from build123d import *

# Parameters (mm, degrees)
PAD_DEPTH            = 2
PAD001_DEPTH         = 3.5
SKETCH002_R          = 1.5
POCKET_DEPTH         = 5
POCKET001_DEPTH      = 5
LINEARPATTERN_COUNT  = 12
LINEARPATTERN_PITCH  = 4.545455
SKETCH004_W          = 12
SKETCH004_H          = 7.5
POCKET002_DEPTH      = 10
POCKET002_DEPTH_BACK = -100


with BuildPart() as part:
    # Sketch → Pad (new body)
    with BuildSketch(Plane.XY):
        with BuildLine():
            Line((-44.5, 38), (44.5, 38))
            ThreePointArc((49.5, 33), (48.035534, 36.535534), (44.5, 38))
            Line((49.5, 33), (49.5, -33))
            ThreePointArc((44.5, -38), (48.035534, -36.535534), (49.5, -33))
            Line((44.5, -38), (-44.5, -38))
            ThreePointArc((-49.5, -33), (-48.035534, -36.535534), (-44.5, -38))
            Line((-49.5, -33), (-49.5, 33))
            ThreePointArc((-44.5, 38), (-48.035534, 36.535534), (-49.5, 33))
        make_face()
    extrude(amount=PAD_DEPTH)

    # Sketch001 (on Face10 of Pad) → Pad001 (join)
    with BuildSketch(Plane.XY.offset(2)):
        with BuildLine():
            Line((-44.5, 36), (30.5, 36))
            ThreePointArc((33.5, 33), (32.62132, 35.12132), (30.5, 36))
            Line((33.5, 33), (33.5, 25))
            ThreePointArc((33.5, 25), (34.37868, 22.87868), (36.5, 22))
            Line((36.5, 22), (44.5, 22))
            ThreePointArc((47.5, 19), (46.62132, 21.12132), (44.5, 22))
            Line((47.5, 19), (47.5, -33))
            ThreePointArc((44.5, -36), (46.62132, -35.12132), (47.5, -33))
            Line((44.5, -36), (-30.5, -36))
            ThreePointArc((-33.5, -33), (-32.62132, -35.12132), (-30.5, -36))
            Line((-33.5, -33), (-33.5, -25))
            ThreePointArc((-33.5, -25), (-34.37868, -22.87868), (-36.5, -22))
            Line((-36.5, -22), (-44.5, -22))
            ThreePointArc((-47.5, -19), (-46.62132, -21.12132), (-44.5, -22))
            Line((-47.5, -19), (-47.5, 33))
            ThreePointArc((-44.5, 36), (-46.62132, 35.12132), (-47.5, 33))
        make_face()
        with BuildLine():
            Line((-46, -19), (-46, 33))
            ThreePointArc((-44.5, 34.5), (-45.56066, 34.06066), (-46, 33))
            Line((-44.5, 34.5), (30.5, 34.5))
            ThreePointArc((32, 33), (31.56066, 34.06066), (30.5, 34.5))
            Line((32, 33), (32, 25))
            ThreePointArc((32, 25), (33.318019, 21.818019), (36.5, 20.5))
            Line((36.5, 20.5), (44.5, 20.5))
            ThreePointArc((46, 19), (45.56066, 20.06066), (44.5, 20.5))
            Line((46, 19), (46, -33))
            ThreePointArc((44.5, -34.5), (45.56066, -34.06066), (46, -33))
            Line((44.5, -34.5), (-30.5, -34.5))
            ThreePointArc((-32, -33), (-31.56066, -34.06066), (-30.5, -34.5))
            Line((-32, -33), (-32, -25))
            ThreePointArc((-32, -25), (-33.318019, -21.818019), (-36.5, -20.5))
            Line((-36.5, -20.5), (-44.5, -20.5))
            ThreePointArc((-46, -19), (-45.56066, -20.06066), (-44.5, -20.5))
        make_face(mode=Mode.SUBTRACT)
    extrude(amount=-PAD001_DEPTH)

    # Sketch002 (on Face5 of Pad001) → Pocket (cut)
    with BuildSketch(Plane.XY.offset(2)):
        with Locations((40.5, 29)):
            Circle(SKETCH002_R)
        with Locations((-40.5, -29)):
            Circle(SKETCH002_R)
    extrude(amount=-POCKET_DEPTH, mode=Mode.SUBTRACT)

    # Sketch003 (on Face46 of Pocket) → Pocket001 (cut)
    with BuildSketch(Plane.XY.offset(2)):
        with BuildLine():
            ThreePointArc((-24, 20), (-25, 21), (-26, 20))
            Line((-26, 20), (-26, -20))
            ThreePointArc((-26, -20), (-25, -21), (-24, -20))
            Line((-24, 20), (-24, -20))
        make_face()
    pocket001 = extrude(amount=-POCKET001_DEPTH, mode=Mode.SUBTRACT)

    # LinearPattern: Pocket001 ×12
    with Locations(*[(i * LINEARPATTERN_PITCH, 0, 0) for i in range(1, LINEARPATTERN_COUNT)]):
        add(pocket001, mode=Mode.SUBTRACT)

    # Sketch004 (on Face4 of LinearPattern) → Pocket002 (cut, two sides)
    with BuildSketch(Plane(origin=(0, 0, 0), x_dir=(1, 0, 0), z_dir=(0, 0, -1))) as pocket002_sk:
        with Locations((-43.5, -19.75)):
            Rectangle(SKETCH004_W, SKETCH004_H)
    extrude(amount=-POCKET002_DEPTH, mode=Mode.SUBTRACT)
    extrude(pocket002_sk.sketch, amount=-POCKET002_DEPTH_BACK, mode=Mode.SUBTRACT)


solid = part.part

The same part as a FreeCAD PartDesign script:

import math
import FreeCAD as App
import Part
import Sketcher
from FreeCAD import Vector
Q = App.Units.Quantity

doc = App.newDocument("Part")
body = doc.addObject("PartDesign::Body", "Body")

# Sketch on XY plane
sketch1 = body.newObject("Sketcher::SketchObject", "Sketch")
sketch1.AttachmentSupport = (doc.getObject("XY_Plane"), [""])
sketch1.MapMode = "FlatFace"
sketch1.addGeometry([
    Part.LineSegment(Vector(44.5, 38, 0), Vector(-44.5, 38, 0)),  # 0
    Part.ArcOfCircle(Part.Circle(Vector(-44.5, 33, 0), Vector(0, 0, 1), 5), math.radians(90), math.radians(180)),  # 1
    Part.LineSegment(Vector(-49.5, 33, 0), Vector(-49.5, -33, 0)),  # 2
    Part.ArcOfCircle(Part.Circle(Vector(-44.5, -33, 0), Vector(0, 0, 1), 5), math.radians(180), math.radians(270)),  # 3
    Part.LineSegment(Vector(-44.5, -38, 0), Vector(44.5, -38, 0)),  # 4
    Part.ArcOfCircle(Part.Circle(Vector(44.5, -33, 0), Vector(0, 0, 1), 5), math.radians(-90), math.radians(0)),  # 5
    Part.LineSegment(Vector(49.5, -33, 0), Vector(49.5, 33, 0)),  # 6
    Part.ArcOfCircle(Part.Circle(Vector(44.5, 33, 0), Vector(0, 0, 1), 5), math.radians(0), math.radians(90)),  # 7
], False)
sketch1.addConstraint([
    Sketcher.Constraint("Tangent", 0, 2, 1, 1),
    Sketcher.Constraint("Tangent", 1, 2, 2, 1),
    Sketcher.Constraint("Tangent", 2, 2, 3, 1),
    Sketcher.Constraint("Tangent", 3, 2, 4, 1),
    Sketcher.Constraint("Tangent", 4, 2, 5, 1),
    Sketcher.Constraint("Tangent", 5, 2, 6, 1),
    Sketcher.Constraint("Tangent", 6, 2, 7, 1),
    Sketcher.Constraint("Tangent", 7, 2, 0, 1),
    Sketcher.Constraint("Horizontal", 0),
    Sketcher.Constraint("Vertical", 2),
    Sketcher.Constraint("Horizontal", 4),
    Sketcher.Constraint("Vertical", 6),
    Sketcher.Constraint("Equal", 1, 3),
    Sketcher.Constraint("Equal", 3, 5),
    Sketcher.Constraint("Equal", 5, 7),
    Sketcher.Constraint("Symmetric", 1, 3, 5, 3, -1, 1),
    Sketcher.Constraint("Radius", 1, Q("5 mm")),
    Sketcher.Constraint("DistanceX", 0, 2, 0, 1, Q("89 mm")),
    Sketcher.Constraint("DistanceY", 2, 2, 2, 1, Q("66 mm")),
])
pad1 = body.newObject("PartDesign::Pad", "Pad")
pad1.Profile = sketch1
pad1.Length = 2

# Sketch on XY plane
sketch2 = body.newObject("Sketcher::SketchObject", "Sketch001")
sketch2.AttachmentSupport = (doc.getObject("XY_Plane"), [""])
sketch2.MapMode = "FlatFace"
sketch2.AttachmentOffset = App.Placement(Vector(0, 0, 2), App.Rotation())
sketch2.addGeometry([
    Part.LineSegment(Vector(30.5, 36, 0), Vector(-44.5, 36, 0)),  # 0
    Part.ArcOfCircle(Part.Circle(Vector(-44.5, 33, 0), Vector(0, 0, 1), 3), math.radians(90), math.radians(180)),  # 1
    Part.LineSegment(Vector(-47.5, 33, 0), Vector(-47.5, -19, 0)),  # 2
    Part.ArcOfCircle(Part.Circle(Vector(-44.5, -19, 0), Vector(0, 0, 1), 3), math.radians(-180), math.radians(-90)),  # 3
    Part.LineSegment(Vector(-44.5, -22, 0), Vector(-36.5, -22, 0)),  # 4
    Part.ArcOfCircle(Part.Circle(Vector(-36.5, -25, 0), Vector(0, 0, 1), 3), math.radians(0), math.radians(90)),  # 5
    Part.LineSegment(Vector(-33.5, -25, 0), Vector(-33.5, -33, 0)),  # 6
    Part.ArcOfCircle(Part.Circle(Vector(-30.5, -33, 0), Vector(0, 0, 1), 3), math.radians(-180), math.radians(-90)),  # 7
    Part.LineSegment(Vector(-30.5, -36, 0), Vector(44.5, -36, 0)),  # 8
    Part.ArcOfCircle(Part.Circle(Vector(44.5, -33, 0), Vector(0, 0, 1), 3), math.radians(-90), math.radians(0)),  # 9
    Part.LineSegment(Vector(47.5, -33, 0), Vector(47.5, 19, 0)),  # 10
    Part.ArcOfCircle(Part.Circle(Vector(44.5, 19, 0), Vector(0, 0, 1), 3), math.radians(0), math.radians(90)),  # 11
    Part.LineSegment(Vector(44.5, 22, 0), Vector(36.5, 22, 0)),  # 12
    Part.ArcOfCircle(Part.Circle(Vector(36.5, 25, 0), Vector(0, 0, 1), 3), math.radians(-180), math.radians(-90)),  # 13
    Part.LineSegment(Vector(33.5, 25, 0), Vector(33.5, 33, 0)),  # 14
    Part.ArcOfCircle(Part.Circle(Vector(30.5, 33, 0), Vector(0, 0, 1), 3), math.radians(0), math.radians(90)),  # 15
    Part.LineSegment(Vector(-46, -19, 0), Vector(-46, 33, 0)),  # 16
    Part.ArcOfCircle(Part.Circle(Vector(-44.5, 33, 0), Vector(0, 0, 1), 1.5), math.radians(90), math.radians(180)),  # 17
    Part.LineSegment(Vector(-44.5, 34.5, 0), Vector(30.5, 34.5, 0)),  # 18
    Part.ArcOfCircle(Part.Circle(Vector(30.5, 33, 0), Vector(0, 0, 1), 1.5), math.radians(0), math.radians(90)),  # 19
    Part.LineSegment(Vector(32, 33, 0), Vector(32, 25, 0)),  # 20
    Part.ArcOfCircle(Part.Circle(Vector(36.5, 25, 0), Vector(0, 0, 1), 4.5), math.radians(180), math.radians(270)),  # 21
    Part.LineSegment(Vector(36.5, 20.5, 0), Vector(44.5, 20.5, 0)),  # 22
    Part.ArcOfCircle(Part.Circle(Vector(44.5, 19, 0), Vector(0, 0, 1), 1.5), math.radians(0), math.radians(90)),  # 23
    Part.LineSegment(Vector(46, 19, 0), Vector(46, -33, 0)),  # 24
    Part.ArcOfCircle(Part.Circle(Vector(44.5, -33, 0), Vector(0, 0, 1), 1.5), math.radians(-90), math.radians(0)),  # 25
    Part.LineSegment(Vector(44.5, -34.5, 0), Vector(-30.5, -34.5, 0)),  # 26
    Part.ArcOfCircle(Part.Circle(Vector(-30.5, -33, 0), Vector(0, 0, 1), 1.5), math.radians(-180), math.radians(-90)),  # 27
    Part.LineSegment(Vector(-32, -33, 0), Vector(-32, -25, 0)),  # 28
    Part.ArcOfCircle(Part.Circle(Vector(-36.5, -25, 0), Vector(0, 0, 1), 4.5), math.radians(0), math.radians(90)),  # 29
    Part.LineSegment(Vector(-36.5, -20.5, 0), Vector(-44.5, -20.5, 0)),  # 30
    Part.ArcOfCircle(Part.Circle(Vector(-44.5, -19, 0), Vector(0, 0, 1), 1.5), math.radians(-180), math.radians(-90)),  # 31
], False)
sketch2.addConstraint([
    Sketcher.Constraint("Tangent", 0, 2, 1, 1),
    Sketcher.Constraint("Tangent", 1, 2, 2, 1),
    Sketcher.Constraint("Tangent", 2, 2, 3, 1),
    Sketcher.Constraint("Tangent", 3, 2, 4, 1),
    Sketcher.Constraint("Tangent", 4, 2, 5, 2),
    Sketcher.Constraint("Tangent", 5, 1, 6, 1),
    Sketcher.Constraint("Tangent", 6, 2, 7, 1),
    Sketcher.Constraint("Tangent", 7, 2, 8, 1),
    Sketcher.Constraint("Tangent", 8, 2, 9, 1),
    Sketcher.Constraint("Tangent", 9, 2, 10, 1),
    Sketcher.Constraint("Tangent", 10, 2, 11, 1),
    Sketcher.Constraint("Tangent", 11, 2, 12, 1),
    Sketcher.Constraint("Tangent", 12, 2, 13, 2),
    Sketcher.Constraint("Tangent", 13, 1, 14, 1),
    Sketcher.Constraint("Tangent", 14, 2, 15, 1),
    Sketcher.Constraint("Tangent", 15, 2, 0, 1),
    Sketcher.Constraint("Tangent", 16, 2, 17, 2),
    Sketcher.Constraint("Tangent", 17, 1, 18, 1),
    Sketcher.Constraint("Tangent", 18, 2, 19, 2),
    Sketcher.Constraint("Tangent", 19, 1, 20, 1),
    Sketcher.Constraint("Tangent", 20, 2, 21, 1),
    Sketcher.Constraint("Tangent", 21, 2, 22, 1),
    Sketcher.Constraint("Tangent", 22, 2, 23, 2),
    Sketcher.Constraint("Tangent", 23, 1, 24, 1),
    Sketcher.Constraint("Tangent", 24, 2, 25, 2),
    Sketcher.Constraint("Tangent", 25, 1, 26, 1),
    Sketcher.Constraint("Tangent", 26, 2, 27, 2),
    Sketcher.Constraint("Tangent", 27, 1, 28, 1),
    Sketcher.Constraint("Tangent", 28, 2, 29, 1),
    Sketcher.Constraint("Tangent", 29, 2, 30, 1),
    Sketcher.Constraint("Tangent", 30, 2, 31, 2),
    Sketcher.Constraint("Tangent", 31, 1, 16, 1),
    Sketcher.Constraint("Horizontal", 0),
    Sketcher.Constraint("Vertical", 2),
    Sketcher.Constraint("Horizontal", 4),
    Sketcher.Constraint("Vertical", 6),
    Sketcher.Constraint("Horizontal", 8),
    Sketcher.Constraint("Vertical", 10),
    Sketcher.Constraint("Horizontal", 12),
    Sketcher.Constraint("Vertical", 14),
    Sketcher.Constraint("Vertical", 16),
    Sketcher.Constraint("Horizontal", 18),
    Sketcher.Constraint("Vertical", 20),
    Sketcher.Constraint("Horizontal", 22),
    Sketcher.Constraint("Vertical", 24),
    Sketcher.Constraint("Horizontal", 26),
    Sketcher.Constraint("Vertical", 28),
    Sketcher.Constraint("Horizontal", 30),
    Sketcher.Constraint("Coincident", 17, 3, 1, 3),
    Sketcher.Constraint("Coincident", 19, 3, 15, 3),
    Sketcher.Constraint("Coincident", 21, 3, 13, 3),
    Sketcher.Constraint("Coincident", 23, 3, 11, 3),
    Sketcher.Constraint("Coincident", 25, 3, 9, 3),
    Sketcher.Constraint("Coincident", 27, 3, 7, 3),
    Sketcher.Constraint("Coincident", 29, 3, 5, 3),
    Sketcher.Constraint("Equal", 1, 3),
    Sketcher.Constraint("Equal", 3, 5),
    Sketcher.Constraint("Equal", 5, 7),
    Sketcher.Constraint("Equal", 7, 9),
    Sketcher.Constraint("Equal", 9, 11),
    Sketcher.Constraint("Equal", 11, 13),
    Sketcher.Constraint("Equal", 13, 15),
    Sketcher.Constraint("Equal", 27, 31),
    Sketcher.Constraint("Symmetric", 1, 3, 9, 3, -1, 1),
    Sketcher.Constraint("Symmetric", 5, 3, 13, 3, -1, 1),
    Sketcher.Constraint("Equal", 30, 6),
    Sketcher.Constraint("Radius", 1, Q("3.000001 mm")),
    Sketcher.Constraint("Radius", 17, Q("1.500001 mm")),
    Sketcher.Constraint("DistanceX", 0, 2, 0, 1, Q("75 mm")),
    Sketcher.Constraint("DistanceX", 4, 1, 4, 2, Q("8 mm")),
    Sketcher.Constraint("DistanceY", 2, 2, 2, 1, Q("52 mm")),
])
pad2 = body.newObject("PartDesign::Pad", "Pad001")
pad2.Profile = sketch2
pad2.Length = 3.5
pad2.Reversed = True

# Sketch on XY plane
sketch3 = body.newObject("Sketcher::SketchObject", "Sketch002")
sketch3.AttachmentSupport = (doc.getObject("XY_Plane"), [""])
sketch3.MapMode = "FlatFace"
sketch3.AttachmentOffset = App.Placement(Vector(0, 0, 2), App.Rotation())
sketch3.addGeometry([
    Part.Circle(Vector(40.5, 29, 0), Vector(0, 0, 1), 1.5),
    Part.Circle(Vector(-40.5, -29, 0), Vector(0, 0, 1), 1.5),
], False)
sketch3.addConstraint([
    Sketcher.Constraint("Equal", 0, 1),
    Sketcher.Constraint("Symmetric", 0, 3, 1, 3, -1, 1),
    Sketcher.Constraint("Diameter", 0, Q("3 mm")),
    Sketcher.Constraint("DistanceY", -1, 1, 0, 3, Q("29 mm")),
    Sketcher.Constraint("DistanceX", 1, 3, 0, 3, Q("81 mm")),
])
pocket1 = body.newObject("PartDesign::Pocket", "Pocket")
pocket1.Profile = sketch3
pocket1.Length = 5

# Sketch on XY plane
sketch4 = body.newObject("Sketcher::SketchObject", "Sketch003")
sketch4.AttachmentSupport = (doc.getObject("XY_Plane"), [""])
sketch4.MapMode = "FlatFace"
sketch4.AttachmentOffset = App.Placement(Vector(0, 0, 2), App.Rotation())
sketch4.addGeometry([
    Part.ArcOfCircle(Part.Circle(Vector(-25, 20, 0), Vector(0, 0, 1), 1), math.radians(0), math.radians(180)),
    Part.LineSegment(Vector(-26, 20, 0), Vector(-26, -20, 0)),
    Part.ArcOfCircle(Part.Circle(Vector(-25, -20, 0), Vector(0, 0, 1), 1), math.radians(180), math.radians(360)),
    Part.LineSegment(Vector(-24, -20, 0), Vector(-24, 20, 0)),
], False)
sketch4.addConstraint([
    Sketcher.Constraint("Tangent", 0, 2, 1, 1),
    Sketcher.Constraint("Tangent", 1, 2, 2, 1),
    Sketcher.Constraint("Tangent", 2, 2, 3, 1),
    Sketcher.Constraint("Tangent", 3, 2, 0, 1),
    Sketcher.Constraint("Vertical", 1),
    Sketcher.Constraint("Vertical", 3),
    Sketcher.Constraint("Radius", 0, Q("1 mm")),
    Sketcher.Constraint("DistanceY", 1, 2, 1, 1, Q("40 mm")),
    Sketcher.Constraint("DistanceX", 0, 3, -1, 1, Q("25 mm")),
    Sketcher.Constraint("DistanceY", -1, 1, 0, 3, Q("20 mm")),
])
pocket2 = body.newObject("PartDesign::Pocket", "Pocket001")
pocket2.Profile = sketch4
pocket2.Length = 5
doc.recompute()

linearpattern = body.newObject("PartDesign::LinearPattern", "LinearPattern")
linearpattern.Originals = [pocket2]
linearpattern.Direction = (doc.getObject("X_Axis"), [""])
linearpattern.Mode = "offset"
linearpattern.Offset = 4.545455
linearpattern.Occurrences = 12
body.Tip = linearpattern

# Sketch on XY plane
sketch5 = body.newObject("Sketcher::SketchObject", "Sketch004")
sketch5.AttachmentSupport = (doc.getObject("XY_Plane"), [""])
sketch5.MapMode = "FlatFace"
sketch5.addGeometry([
    Part.LineSegment(Vector(-50, 16, 0), Vector(-50, 24, 0)),
    Part.LineSegment(Vector(-50, 24, 0), Vector(-38, 24, 0)),
    Part.LineSegment(Vector(-38, 24, 0), Vector(-38, 16, 0)),
    Part.LineSegment(Vector(-38, 16, 0), Vector(-50, 16, 0)),
], False)
sketch5.addConstraint([
    Sketcher.Constraint("Coincident", 0, 2, 1, 1),
    Sketcher.Constraint("Coincident", 1, 2, 2, 1),
    Sketcher.Constraint("Coincident", 2, 2, 3, 1),
    Sketcher.Constraint("Coincident", 3, 2, 0, 1),
    Sketcher.Constraint("Vertical", 0),
    Sketcher.Constraint("Horizontal", 1),
    Sketcher.Constraint("Vertical", 2),
    Sketcher.Constraint("Horizontal", 3),
    Sketcher.Constraint("DistanceX", 1, 1, 1, 2, Q("12 mm")),
    Sketcher.Constraint("DistanceY", 0, 1, 0, 2, Q("7.5 mm")),
    Sketcher.Constraint("DistanceY", -1, 1, 2, 2, Q("16 mm")),
    Sketcher.Constraint("DistanceX", 0, 2, -1, 1, Q("49.5 mm")),
])
pocket3 = body.newObject("PartDesign::Pocket", "Pocket002")
pocket3.Profile = sketch5
pocket3.Type = "ThroughAll"
pocket3.Midplane = True

doc.recompute()
